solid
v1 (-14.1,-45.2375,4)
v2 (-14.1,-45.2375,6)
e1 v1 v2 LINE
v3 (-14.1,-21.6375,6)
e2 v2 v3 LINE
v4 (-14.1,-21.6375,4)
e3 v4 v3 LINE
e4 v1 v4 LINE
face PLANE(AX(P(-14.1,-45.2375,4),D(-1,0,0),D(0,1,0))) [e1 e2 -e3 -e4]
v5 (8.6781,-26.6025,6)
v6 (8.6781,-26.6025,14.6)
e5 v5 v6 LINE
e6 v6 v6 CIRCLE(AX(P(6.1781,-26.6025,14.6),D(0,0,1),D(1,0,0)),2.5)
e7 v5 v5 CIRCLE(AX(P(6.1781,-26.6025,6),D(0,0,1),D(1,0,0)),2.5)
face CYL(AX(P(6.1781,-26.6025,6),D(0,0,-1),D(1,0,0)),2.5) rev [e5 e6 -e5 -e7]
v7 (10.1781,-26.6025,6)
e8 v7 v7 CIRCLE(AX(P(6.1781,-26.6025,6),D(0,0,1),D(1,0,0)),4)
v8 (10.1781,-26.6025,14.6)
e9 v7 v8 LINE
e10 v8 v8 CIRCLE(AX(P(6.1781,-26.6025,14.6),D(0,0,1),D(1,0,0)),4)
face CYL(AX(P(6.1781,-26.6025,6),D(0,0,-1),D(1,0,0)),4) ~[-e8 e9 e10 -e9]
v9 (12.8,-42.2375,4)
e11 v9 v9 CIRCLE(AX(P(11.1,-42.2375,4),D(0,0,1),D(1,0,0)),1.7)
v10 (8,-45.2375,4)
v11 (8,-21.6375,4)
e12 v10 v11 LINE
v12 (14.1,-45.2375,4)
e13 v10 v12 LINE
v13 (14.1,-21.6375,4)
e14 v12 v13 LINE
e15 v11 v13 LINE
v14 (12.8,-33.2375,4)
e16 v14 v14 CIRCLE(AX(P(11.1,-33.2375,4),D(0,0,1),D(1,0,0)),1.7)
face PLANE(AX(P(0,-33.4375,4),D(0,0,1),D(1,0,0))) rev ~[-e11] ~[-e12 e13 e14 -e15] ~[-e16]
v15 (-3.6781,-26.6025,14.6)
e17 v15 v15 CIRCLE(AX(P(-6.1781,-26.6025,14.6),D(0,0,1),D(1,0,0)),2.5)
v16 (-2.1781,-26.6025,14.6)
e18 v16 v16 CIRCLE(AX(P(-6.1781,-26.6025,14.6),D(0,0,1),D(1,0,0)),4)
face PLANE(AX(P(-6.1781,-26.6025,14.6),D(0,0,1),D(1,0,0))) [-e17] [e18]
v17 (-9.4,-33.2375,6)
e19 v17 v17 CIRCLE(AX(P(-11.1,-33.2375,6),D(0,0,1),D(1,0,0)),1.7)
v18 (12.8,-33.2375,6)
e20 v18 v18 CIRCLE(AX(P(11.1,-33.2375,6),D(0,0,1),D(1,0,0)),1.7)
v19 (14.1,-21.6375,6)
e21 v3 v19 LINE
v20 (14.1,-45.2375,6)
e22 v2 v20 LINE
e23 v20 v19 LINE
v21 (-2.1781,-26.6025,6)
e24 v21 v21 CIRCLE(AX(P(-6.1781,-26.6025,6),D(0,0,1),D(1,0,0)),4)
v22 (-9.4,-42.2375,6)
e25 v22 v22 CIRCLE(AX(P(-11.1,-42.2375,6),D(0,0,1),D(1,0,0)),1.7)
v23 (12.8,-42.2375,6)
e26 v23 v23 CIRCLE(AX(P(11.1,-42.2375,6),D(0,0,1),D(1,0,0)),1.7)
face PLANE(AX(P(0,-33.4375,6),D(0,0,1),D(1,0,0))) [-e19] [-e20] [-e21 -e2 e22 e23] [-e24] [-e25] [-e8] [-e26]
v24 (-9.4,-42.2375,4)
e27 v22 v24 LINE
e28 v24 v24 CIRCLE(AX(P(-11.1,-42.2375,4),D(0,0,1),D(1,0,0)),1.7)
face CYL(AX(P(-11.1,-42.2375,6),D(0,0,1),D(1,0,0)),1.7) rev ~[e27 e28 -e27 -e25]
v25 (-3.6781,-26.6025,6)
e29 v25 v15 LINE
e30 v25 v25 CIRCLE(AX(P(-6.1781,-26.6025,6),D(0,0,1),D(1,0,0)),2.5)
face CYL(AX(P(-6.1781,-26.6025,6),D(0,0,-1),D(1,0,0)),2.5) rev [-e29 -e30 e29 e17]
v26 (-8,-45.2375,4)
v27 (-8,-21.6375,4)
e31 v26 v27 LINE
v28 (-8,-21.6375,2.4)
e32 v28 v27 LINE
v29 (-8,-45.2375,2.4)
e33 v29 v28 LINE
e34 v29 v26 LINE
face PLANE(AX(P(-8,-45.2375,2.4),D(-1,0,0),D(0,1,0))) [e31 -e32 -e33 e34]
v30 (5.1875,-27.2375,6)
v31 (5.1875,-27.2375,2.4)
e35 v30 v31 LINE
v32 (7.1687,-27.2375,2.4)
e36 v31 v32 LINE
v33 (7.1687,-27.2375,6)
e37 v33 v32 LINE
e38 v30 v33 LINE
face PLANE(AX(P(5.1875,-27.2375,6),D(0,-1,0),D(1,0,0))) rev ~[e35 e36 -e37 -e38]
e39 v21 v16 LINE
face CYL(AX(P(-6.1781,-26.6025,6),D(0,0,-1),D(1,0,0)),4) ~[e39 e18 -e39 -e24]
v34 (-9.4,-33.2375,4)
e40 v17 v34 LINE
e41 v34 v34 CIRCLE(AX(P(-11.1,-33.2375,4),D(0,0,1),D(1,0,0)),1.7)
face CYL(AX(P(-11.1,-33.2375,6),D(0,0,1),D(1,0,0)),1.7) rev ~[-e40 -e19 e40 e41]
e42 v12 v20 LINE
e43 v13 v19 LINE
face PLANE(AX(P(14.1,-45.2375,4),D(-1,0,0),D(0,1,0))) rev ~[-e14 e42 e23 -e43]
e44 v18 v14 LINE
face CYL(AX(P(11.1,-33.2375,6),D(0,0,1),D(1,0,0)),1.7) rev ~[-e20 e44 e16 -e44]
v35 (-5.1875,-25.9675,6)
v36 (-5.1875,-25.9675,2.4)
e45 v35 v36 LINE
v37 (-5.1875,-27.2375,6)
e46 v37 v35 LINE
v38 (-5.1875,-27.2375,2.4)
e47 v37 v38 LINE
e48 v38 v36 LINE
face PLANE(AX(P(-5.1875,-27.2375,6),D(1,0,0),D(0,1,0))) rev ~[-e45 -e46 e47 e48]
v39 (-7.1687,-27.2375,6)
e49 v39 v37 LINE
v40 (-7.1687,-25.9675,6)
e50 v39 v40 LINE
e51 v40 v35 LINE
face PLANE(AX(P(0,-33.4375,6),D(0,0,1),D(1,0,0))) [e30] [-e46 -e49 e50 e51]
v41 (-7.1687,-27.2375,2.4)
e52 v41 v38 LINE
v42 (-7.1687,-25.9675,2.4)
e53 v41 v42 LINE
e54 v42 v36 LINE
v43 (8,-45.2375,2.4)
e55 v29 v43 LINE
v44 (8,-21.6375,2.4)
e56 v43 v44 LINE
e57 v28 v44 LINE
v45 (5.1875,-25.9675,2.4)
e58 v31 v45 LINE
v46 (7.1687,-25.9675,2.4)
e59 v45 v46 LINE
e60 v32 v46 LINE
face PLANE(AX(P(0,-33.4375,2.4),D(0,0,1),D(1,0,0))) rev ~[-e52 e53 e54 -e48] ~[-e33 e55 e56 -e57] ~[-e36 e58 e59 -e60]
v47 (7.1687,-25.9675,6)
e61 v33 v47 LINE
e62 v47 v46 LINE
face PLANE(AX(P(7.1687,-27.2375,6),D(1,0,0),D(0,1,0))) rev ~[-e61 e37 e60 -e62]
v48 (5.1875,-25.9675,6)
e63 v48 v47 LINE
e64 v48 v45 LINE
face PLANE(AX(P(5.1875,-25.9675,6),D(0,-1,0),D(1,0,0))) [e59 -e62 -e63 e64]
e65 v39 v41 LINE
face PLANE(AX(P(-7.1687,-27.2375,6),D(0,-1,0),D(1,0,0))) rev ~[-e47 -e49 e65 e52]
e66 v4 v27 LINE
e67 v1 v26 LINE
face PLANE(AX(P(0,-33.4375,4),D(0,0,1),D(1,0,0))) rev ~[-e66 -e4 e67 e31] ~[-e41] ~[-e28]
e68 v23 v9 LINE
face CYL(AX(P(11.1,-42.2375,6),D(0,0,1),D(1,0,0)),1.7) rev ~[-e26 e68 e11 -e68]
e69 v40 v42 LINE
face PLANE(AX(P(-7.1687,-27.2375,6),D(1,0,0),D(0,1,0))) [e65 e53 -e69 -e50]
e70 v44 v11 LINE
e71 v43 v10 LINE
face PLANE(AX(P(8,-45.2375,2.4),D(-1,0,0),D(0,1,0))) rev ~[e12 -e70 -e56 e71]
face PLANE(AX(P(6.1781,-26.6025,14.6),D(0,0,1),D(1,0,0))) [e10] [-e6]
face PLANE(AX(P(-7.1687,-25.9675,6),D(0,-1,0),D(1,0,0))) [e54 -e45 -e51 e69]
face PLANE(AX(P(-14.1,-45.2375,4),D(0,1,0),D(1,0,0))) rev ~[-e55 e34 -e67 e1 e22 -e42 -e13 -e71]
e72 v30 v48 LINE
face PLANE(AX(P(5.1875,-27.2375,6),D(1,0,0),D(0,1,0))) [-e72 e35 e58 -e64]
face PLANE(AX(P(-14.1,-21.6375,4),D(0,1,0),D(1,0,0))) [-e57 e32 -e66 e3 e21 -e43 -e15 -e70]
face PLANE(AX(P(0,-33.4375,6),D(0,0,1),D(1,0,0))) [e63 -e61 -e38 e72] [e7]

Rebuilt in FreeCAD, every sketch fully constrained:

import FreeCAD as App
import Part
import Sketcher

V = App.Vector
Q = App.Units.Quantity

doc = App.newDocument("Part")
body = doc.addObject("PartDesign::Body", "Body")

# Sketch on XY plane
sketch1 = body.newObject("Sketcher::SketchObject", "Sketch")
sketch1.AttachmentSupport = (doc.getObject("XY_Plane"), [""])
sketch1.MapMode = "FlatFace"
sketch1.addGeometry(Part.LineSegment(V(-8, -22, 0), V(-8, -45, 0)), False)
sketch1.addGeometry(Part.LineSegment(V(-8, -45, 0), V(8, -45, 0)), False)
sketch1.addGeometry(Part.LineSegment(V(8, -45, 0), V(8, -22, 0)), False)
sketch1.addGeometry(Part.LineSegment(V(8, -22, 0), V(-8, -22, 0)), False)
sketch1.addConstraint(Sketcher.Constraint("Coincident", 0, 2, 1, 1))
sketch1.addConstraint(Sketcher.Constraint("Coincident", 1, 2, 2, 1))
sketch1.addConstraint(Sketcher.Constraint("Coincident", 2, 2, 3, 1))
sketch1.addConstraint(Sketcher.Constraint("Coincident", 3, 2, 0, 1))
sketch1.addConstraint(Sketcher.Constraint("Vertical", 0))
sketch1.addConstraint(Sketcher.Constraint("Horizontal", 1))
sketch1.addConstraint(Sketcher.Constraint("Vertical", 2))
sketch1.addConstraint(Sketcher.Constraint("Horizontal", 3))
sketch1.addConstraint(Sketcher.Constraint("DistanceX", 1, 1, 1, 2, Q("16 mm")))
sketch1.addConstraint(Sketcher.Constraint("DistanceY", 0, 2, 0, 1, Q("23.6 mm")))
sketch1.addConstraint(Sketcher.Constraint("DistanceX", 0, 2, -1, 1, Q("8 mm")))
sketch1.addConstraint(Sketcher.Constraint("DistanceY", 0, 2, -1, 1, Q("45.2375 mm")))
pad1 = body.newObject("PartDesign::Pad", "Pad")
pad1.Profile = sketch1
pad1.Length = 1.6

# Sketch on XY plane
sketch2 = body.newObject("Sketcher::SketchObject", "Sketch001")
sketch2.AttachmentSupport = (doc.getObject("XY_Plane"), [""])
sketch2.MapMode = "FlatFace"
sketch2.AttachmentOffset = App.Placement(V(0, 0, 1.6), App.Rotation())
sketch2.addGeometry(Part.LineSegment(V(-14, -22, 0), V(-14, -45, 0)), False)
sketch2.addGeometry(Part.LineSegment(V(-14, -45, 0), V(14, -45, 0)), False)
sketch2.addGeometry(Part.LineSegment(V(14, -45, 0), V(14, -22, 0)), False)
sketch2.addGeometry(Part.LineSegment(V(14, -22, 0), V(-14, -22, 0)), False)
sketch2.addConstraint(Sketcher.Constraint("Coincident", 0, 2, 1, 1))
sketch2.addConstraint(Sketcher.Constraint("Coincident", 1, 2, 2, 1))
sketch2.addConstraint(Sketcher.Constraint("Coincident", 2, 2, 3, 1))
sketch2.addConstraint(Sketcher.Constraint("Coincident", 3, 2, 0, 1))
sketch2.addConstraint(Sketcher.Constraint("Vertical", 0))
sketch2.addConstraint(Sketcher.Constraint("Horizontal", 1))
sketch2.addConstraint(Sketcher.Constraint("Vertical", 2))
sketch2.addConstraint(Sketcher.Constraint("Horizontal", 3))
sketch2.addConstraint(Sketcher.Constraint("DistanceX", 1, 1, 1, 2, Q("28.2 mm")))
sketch2.addConstraint(Sketcher.Constraint("DistanceY", 0, 2, 0, 1, Q("23.6 mm")))
sketch2.addConstraint(Sketcher.Constraint("DistanceX", 0, 2, -1, 1, Q("14.1 mm")))
sketch2.addConstraint(Sketcher.Constraint("DistanceY", 0, 2, -1, 1, Q("45.2375 mm")))
pad2 = body.newObject("PartDesign::Pad", "Pad001")
pad2.Profile = sketch2
pad2.Length = 2

# Sketch on XY plane
sketch3 = body.newObject("Sketcher::SketchObject", "Sketch002")
sketch3.AttachmentSupport = (doc.getObject("XY_Plane"), [""])
sketch3.MapMode = "FlatFace"
sketch3.AttachmentOffset = App.Placement(V(0, 0, 3.6), App.Rotation())
sketch3.addGeometry(Part.LineSegment(V(-7.2, -26, 0), V(-7.2, -27.2, 0)), False)
sketch3.addGeometry(Part.LineSegment(V(-7.2, -27.2, 0), V(-5.2, -27.2, 0)), False)
sketch3.addGeometry(Part.LineSegment(V(-5.2, -27.2, 0), V(-5.2, -26, 0)), False)
sketch3.addGeometry(Part.LineSegment(V(-5.2, -26, 0), V(-7.2, -26, 0)), False)
sketch3.addGeometry(Part.LineSegment(V(5.2, -26, 0), V(5.2, -27.2, 0)), False)
sketch3.addGeometry(Part.LineSegment(V(5.2, -27.2, 0), V(7.2, -27.2, 0)), False)
sketch3.addGeometry(Part.LineSegment(V(7.2, -27.2, 0), V(7.2, -26, 0)), False)
sketch3.addGeometry(Part.LineSegment(V(7.2, -26, 0), V(5.2, -26, 0)), False)
sketch3.addConstraint(Sketcher.Constraint("Coincident", 0, 2, 1, 1))
sketch3.addConstraint(Sketcher.Constraint("Coincident", 1, 2, 2, 1))
sketch3.addConstraint(Sketcher.Constraint("Coincident", 2, 2, 3, 1))
sketch3.addConstraint(Sketcher.Constraint("Coincident", 3, 2, 0, 1))
sketch3.addConstraint(Sketcher.Constraint("Coincident", 4, 2, 5, 1))
sketch3.addConstraint(Sketcher.Constraint("Coincident", 5, 2, 6, 1))
sketch3.addConstraint(Sketcher.Constraint("Coincident", 6, 2, 7, 1))
sketch3.addConstraint(Sketcher.Constraint("Coincident", 7, 2, 4, 1))
sketch3.addConstraint(Sketcher.Constraint("Vertical", 0))
sketch3.addConstraint(Sketcher.Constraint("Horizontal", 1))
sketch3.addConstraint(Sketcher.Constraint("Vertical", 2))
sketch3.addConstraint(Sketcher.Constraint("Horizontal", 3))
sketch3.addConstraint(Sketcher.Constraint("Vertical", 4))
sketch3.addConstraint(Sketcher.Constraint("Horizontal", 5))
sketch3.addConstraint(Sketcher.Constraint("Vertical", 6))
sketch3.addConstraint(Sketcher.Constraint("Horizontal", 7))
sketch3.addConstraint(Sketcher.Constraint("Symmetric", 1, 2, 4, 2, -2))
sketch3.addConstraint(Sketcher.Constraint("Symmetric", 3, 2, 6, 2, -2))
sketch3.addConstraint(Sketcher.Constraint("DistanceY", 0, 2, 0, 1, Q("1.27 mm")))
sketch3.addConstraint(Sketcher.Constraint("DistanceX", 1, 1, 1, 2, Q("1.9812 mm")))
sketch3.addConstraint(Sketcher.Constraint("DistanceX", 1, 2, 4, 2, Q("10.375 mm")))
sketch3.addConstraint(Sketcher.Constraint("DistanceY", 0, 2, -1, 1, Q("27.2375 mm")))
pocket1 = body.newObject("PartDesign::Pocket", "Pocket")
pocket1.Profile = sketch3
pocket1.Type = "ThroughAll"

# Sketch on XY plane
sketch4 = body.newObject("Sketcher::SketchObject", "Sketch003")
sketch4.AttachmentSupport = (doc.getObject("XY_Plane"), [""])
sketch4.MapMode = "FlatFace"
sketch4.AttachmentOffset = App.Placement(V(0, 0, 3.6), App.Rotation())
sketch4.addGeometry(Part.Circle(V(-6.2, -26.6, 0), V(0, 0, 1), 4), False)
sketch4.addGeometry(Part.Circle(V(-6.2, -26.6, 0), V(0, 0, 1), 2.5), False)
sketch4.addGeometry(Part.Circle(V(6.2, -26.6, 0), V(0, 0, 1), 4), False)
sketch4.addGeometry(Part.Circle(V(6.2, -26.6, 0), V(0, 0, 1), 2.5), False)
sketch4.addConstraint(Sketcher.Constraint("Coincident", 1, 3, 0, 3))
sketch4.addConstraint(Sketcher.Constraint("Coincident", 3, 3, 2, 3))
sketch4.addConstraint(Sketcher.Constraint("Equal", 0, 2))
sketch4.addConstraint(Sketcher.Constraint("Equal", 1, 3))
sketch4.addConstraint(Sketcher.Constraint("Symmetric", 0, 3, 2, 3, -2))
sketch4.addConstraint(Sketcher.Constraint("Diameter", 0, Q("8 mm")))
sketch4.addConstraint(Sketcher.Constraint("Diameter", 1, Q("5 mm")))
sketch4.addConstraint(Sketcher.Constraint("DistanceX", 0, 3, -1, 1, Q("6.1781 mm")))
sketch4.addConstraint(Sketcher.Constraint("DistanceY", 0, 3, -1, 1, Q("26.6025 mm")))
pad3 = body.newObject("PartDesign::Pad", "Pad002")
pad3.Profile = sketch4
pad3.Length = 8.6

# Sketch on XY plane
sketch5 = body.newObject("Sketcher::SketchObject", "Sketch004")
sketch5.AttachmentSupport = (doc.getObject("XY_Plane"), [""])
sketch5.MapMode = "FlatFace"
sketch5.AttachmentOffset = App.Placement(V(0, 0, 3.6), App.Rotation())
sketch5.addGeometry(Part.Circle(V(-11.1, -42.2, 0), V(0, 0, 1), 1.7), False)
sketch5.addGeometry(Part.Circle(V(11.1, -42.2, 0), V(0, 0, 1), 1.7), False)
sketch5.addGeometry(Part.Circle(V(-11.1, -33.2, 0), V(0, 0, 1), 1.7), False)
sketch5.addGeometry(Part.Circle(V(11.1, -33.2, 0), V(0, 0, 1), 1.7), False)
sketch5.addConstraint(Sketcher.Constraint("Equal", 0, 1))
sketch5.addConstraint(Sketcher.Constraint("Equal", 1, 2))
sketch5.addConstraint(Sketcher.Constraint("Equal", 2, 3))
sketch5.addConstraint(Sketcher.Constraint("Symmetric", 0, 3, 1, 3, -2))
sketch5.addConstraint(Sketcher.Constraint("Symmetric", 2, 3, 3, 3, -2))
sketch5.addConstraint(Sketcher.Constraint("Vertical", 0, 3, 2, 3))
sketch5.addConstraint(Sketcher.Constraint("Diameter", 0, Q("3.4 mm")))
sketch5.addConstraint(Sketcher.Constraint("DistanceY", 0, 3, 2, 3, Q("9 mm")))
sketch5.addConstraint(Sketcher.Constraint("DistanceX", 0, 3, -1, 1, Q("11.1 mm")))
sketch5.addConstraint(Sketcher.Constraint("DistanceY", 0, 3, -1, 1, Q("42.2375 mm")))
pocket2 = body.newObject("PartDesign::Pocket", "Pocket001")
pocket2.Profile = sketch5
pocket2.Length = 2
body2 = doc.addObject("PartDesign::Body", "Body001")
doc.recompute()

body.Placement = App.Placement(V(0, 0, 2.4), App.Rotation(V(0, 0, 1), 0))
boolean = body2.newObject("PartDesign::Boolean", "Boolean")
boolean.Type = "Fuse"
boolean.addObjects([body])

doc.recompute()
